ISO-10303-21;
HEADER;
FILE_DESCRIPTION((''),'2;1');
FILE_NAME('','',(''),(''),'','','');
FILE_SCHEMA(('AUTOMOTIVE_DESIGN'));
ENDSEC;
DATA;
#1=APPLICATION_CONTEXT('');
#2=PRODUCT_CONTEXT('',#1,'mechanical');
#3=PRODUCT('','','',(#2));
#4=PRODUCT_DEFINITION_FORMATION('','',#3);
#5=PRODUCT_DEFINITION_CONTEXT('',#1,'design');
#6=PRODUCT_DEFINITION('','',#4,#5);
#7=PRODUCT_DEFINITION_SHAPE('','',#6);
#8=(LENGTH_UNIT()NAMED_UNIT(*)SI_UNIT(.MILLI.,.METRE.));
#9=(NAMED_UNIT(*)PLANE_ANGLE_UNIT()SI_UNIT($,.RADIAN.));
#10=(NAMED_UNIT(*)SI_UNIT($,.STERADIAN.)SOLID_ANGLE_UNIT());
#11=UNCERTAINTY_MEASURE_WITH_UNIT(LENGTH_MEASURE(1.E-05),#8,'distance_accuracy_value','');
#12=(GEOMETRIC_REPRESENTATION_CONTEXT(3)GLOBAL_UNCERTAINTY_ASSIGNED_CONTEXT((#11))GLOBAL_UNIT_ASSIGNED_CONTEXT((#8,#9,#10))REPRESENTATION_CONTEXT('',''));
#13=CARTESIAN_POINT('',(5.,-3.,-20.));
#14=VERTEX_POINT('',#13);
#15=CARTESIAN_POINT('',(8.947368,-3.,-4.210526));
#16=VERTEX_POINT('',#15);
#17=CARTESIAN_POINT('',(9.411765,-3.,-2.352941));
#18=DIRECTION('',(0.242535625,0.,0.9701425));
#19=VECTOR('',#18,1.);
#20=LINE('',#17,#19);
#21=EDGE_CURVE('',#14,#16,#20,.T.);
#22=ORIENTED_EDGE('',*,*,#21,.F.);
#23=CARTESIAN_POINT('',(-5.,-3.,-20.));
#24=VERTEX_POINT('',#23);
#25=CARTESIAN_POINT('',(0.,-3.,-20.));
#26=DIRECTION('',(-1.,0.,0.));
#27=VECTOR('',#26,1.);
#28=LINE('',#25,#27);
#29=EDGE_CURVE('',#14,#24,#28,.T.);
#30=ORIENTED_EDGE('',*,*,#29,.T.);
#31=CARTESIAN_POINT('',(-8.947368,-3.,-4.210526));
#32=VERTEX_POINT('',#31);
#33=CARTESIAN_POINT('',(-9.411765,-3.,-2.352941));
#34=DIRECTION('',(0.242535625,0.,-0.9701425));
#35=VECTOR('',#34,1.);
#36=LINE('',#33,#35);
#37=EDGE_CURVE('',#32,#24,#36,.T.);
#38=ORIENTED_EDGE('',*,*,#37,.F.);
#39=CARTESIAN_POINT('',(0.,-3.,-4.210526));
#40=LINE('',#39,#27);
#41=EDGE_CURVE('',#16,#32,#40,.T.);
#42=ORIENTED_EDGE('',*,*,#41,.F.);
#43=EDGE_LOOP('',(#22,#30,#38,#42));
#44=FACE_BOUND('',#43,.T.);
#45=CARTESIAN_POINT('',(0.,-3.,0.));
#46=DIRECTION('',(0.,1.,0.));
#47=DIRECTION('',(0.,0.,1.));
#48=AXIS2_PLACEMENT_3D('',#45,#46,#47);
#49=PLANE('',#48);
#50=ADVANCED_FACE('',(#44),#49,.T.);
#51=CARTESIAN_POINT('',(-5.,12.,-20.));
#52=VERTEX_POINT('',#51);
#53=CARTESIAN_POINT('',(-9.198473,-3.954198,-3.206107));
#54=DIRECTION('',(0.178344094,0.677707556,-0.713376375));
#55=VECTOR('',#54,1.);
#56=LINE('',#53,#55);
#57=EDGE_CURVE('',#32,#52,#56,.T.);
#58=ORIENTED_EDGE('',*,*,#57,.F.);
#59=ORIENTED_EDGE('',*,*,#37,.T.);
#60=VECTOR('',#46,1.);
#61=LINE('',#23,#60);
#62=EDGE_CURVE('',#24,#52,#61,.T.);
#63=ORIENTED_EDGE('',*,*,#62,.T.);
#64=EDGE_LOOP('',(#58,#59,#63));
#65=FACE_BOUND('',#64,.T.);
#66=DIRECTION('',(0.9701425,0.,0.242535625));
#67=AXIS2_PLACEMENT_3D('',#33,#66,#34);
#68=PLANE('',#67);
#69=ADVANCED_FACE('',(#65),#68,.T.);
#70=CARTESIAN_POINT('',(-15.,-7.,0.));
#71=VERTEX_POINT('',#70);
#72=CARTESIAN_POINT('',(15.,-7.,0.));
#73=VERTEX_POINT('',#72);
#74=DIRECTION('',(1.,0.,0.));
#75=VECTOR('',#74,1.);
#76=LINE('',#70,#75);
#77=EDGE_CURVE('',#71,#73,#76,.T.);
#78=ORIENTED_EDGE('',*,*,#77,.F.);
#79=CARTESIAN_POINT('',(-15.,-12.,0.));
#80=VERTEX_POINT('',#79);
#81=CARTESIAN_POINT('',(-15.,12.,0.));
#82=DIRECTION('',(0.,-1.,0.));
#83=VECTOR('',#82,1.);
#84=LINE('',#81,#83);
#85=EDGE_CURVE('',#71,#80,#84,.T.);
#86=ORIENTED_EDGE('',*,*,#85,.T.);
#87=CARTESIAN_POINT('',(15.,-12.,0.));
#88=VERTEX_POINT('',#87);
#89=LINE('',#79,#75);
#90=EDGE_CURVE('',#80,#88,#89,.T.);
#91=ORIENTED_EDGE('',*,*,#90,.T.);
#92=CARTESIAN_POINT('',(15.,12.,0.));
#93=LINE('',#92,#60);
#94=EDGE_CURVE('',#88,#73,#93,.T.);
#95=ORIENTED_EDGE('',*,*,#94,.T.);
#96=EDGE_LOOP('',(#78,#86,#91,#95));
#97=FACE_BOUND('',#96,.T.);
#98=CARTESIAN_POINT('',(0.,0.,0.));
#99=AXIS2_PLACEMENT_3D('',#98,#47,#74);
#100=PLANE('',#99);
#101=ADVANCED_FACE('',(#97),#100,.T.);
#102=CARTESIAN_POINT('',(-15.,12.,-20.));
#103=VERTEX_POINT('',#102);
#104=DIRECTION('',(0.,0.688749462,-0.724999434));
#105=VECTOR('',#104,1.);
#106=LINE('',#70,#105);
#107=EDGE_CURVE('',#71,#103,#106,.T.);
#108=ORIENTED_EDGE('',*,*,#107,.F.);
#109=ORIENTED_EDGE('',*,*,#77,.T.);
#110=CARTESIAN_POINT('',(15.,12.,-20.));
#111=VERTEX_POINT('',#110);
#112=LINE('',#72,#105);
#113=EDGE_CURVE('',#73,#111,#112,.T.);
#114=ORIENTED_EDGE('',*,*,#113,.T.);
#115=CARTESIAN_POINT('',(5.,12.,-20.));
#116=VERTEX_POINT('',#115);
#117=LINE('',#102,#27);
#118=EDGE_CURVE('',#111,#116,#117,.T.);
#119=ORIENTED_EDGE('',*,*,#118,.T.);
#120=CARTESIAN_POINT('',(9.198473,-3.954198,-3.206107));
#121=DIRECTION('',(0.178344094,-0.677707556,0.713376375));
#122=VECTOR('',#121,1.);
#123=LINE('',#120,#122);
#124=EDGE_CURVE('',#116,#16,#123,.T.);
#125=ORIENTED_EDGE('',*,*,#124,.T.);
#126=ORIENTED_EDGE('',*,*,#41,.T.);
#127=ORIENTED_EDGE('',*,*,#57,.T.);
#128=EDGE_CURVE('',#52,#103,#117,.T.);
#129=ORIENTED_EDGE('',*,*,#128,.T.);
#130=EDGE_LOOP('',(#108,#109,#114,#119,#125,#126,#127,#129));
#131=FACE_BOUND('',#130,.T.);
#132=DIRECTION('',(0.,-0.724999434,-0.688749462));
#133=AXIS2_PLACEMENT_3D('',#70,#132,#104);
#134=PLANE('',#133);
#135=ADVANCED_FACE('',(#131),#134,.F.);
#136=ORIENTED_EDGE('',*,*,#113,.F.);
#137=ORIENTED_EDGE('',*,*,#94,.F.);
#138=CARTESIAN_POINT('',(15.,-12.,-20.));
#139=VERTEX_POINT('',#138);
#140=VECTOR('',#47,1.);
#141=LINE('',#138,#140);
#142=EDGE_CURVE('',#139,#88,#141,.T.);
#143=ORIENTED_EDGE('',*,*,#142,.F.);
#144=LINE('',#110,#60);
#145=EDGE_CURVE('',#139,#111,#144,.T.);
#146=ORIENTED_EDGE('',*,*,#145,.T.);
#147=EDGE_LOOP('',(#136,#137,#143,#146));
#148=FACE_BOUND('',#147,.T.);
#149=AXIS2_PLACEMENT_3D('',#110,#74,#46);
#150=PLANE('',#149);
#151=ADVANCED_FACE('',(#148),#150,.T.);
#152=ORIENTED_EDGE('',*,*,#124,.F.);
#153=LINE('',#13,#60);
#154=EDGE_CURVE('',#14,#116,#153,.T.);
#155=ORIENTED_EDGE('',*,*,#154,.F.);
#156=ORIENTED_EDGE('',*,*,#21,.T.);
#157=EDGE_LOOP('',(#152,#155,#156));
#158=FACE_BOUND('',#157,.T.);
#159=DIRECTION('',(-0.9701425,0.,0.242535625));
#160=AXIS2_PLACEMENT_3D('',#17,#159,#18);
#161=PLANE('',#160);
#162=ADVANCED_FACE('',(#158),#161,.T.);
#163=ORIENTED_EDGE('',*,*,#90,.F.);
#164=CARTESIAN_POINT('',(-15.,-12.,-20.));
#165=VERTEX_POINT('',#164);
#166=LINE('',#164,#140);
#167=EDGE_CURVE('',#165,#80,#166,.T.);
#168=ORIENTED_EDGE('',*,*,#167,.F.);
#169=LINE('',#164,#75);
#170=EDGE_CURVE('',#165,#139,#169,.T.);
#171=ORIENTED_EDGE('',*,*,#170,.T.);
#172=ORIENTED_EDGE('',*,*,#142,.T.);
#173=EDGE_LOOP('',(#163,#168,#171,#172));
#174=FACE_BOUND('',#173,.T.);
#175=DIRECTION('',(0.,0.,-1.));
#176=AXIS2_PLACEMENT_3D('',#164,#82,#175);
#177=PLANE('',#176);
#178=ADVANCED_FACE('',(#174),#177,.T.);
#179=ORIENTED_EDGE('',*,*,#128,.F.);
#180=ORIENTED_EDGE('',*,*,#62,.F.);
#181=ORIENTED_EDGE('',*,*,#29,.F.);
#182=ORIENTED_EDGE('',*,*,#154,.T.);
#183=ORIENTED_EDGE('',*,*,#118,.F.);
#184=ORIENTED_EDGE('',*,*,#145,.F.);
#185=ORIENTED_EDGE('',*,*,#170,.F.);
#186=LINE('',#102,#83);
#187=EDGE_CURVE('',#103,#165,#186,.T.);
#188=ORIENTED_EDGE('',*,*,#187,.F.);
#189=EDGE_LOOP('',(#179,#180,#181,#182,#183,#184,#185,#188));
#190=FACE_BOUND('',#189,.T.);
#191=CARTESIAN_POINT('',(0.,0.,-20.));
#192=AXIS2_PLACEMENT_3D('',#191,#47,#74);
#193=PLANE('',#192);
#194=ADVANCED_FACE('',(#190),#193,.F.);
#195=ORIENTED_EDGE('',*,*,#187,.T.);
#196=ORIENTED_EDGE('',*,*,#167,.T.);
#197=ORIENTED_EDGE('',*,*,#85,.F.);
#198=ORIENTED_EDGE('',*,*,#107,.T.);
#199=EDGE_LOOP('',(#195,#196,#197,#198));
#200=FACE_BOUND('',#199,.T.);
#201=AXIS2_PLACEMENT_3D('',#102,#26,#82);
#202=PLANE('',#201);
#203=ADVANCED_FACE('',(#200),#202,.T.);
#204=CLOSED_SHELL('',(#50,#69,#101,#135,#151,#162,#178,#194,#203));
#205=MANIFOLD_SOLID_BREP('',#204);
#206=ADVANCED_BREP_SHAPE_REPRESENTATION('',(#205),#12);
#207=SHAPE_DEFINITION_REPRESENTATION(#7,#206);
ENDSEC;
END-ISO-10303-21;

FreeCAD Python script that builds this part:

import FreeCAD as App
import Part
import Sketcher

doc = App.newDocument("Part")
body = doc.addObject("PartDesign::Body", "Body")

# Sketch on XY plane
sketch1 = body.newObject("Sketcher::SketchObject", "Sketch")
sketch1.AttachmentSupport = (doc.getObject("XY_Plane"), [""])
sketch1.MapMode = "FlatFace"
sketch1.addGeometry([
    Part.LineSegment(App.Vector(-15, 12, 0), App.Vector(-15, -12, 0)),
    Part.LineSegment(App.Vector(-15, -12, 0), App.Vector(15, -12, 0)),
    Part.LineSegment(App.Vector(15, -12, 0), App.Vector(15, 12, 0)),
    Part.LineSegment(App.Vector(15, 12, 0), App.Vector(-15, 12, 0)),
], False)
sketch1.addConstraint([
    Sketcher.Constraint("Coincident", 0, 2, 1, 1),
    Sketcher.Constraint("Coincident", 1, 2, 2, 1),
    Sketcher.Constraint("Coincident", 2, 2, 3, 1),
    Sketcher.Constraint("Coincident", 3, 2, 0, 1),
    Sketcher.Constraint("Vertical", 0),
    Sketcher.Constraint("Horizontal", 1),
    Sketcher.Constraint("Vertical", 2),
    Sketcher.Constraint("Horizontal", 3),
    Sketcher.Constraint("Symmetric", 0, 2, 2, 2, -1, 1),
    Sketcher.Constraint("DistanceX", 1, 1, 1, 2, 30.0),
    Sketcher.Constraint("DistanceY", 0, 2, 0, 1, 24.0),
])
pad1 = body.newObject("PartDesign::Pad", "Pad")
pad1.Profile = sketch1
pad1.Length = 20
pad1.Reversed = True

# Sketch on XZ plane
sketch2 = body.newObject("Sketcher::SketchObject", "Sketch001")
sketch2.AttachmentSupport = (doc.getObject("XZ_Plane"), [""])
sketch2.MapMode = "FlatFace"
sketch2.AttachmentOffset = App.Placement(App.Vector(0, 0, -12), App.Rotation())
sketch2.addGeometry([
    Part.LineSegment(App.Vector(-5, -20, 0), App.Vector(-10, 0, 0)),
    Part.LineSegment(App.Vector(-10, 0, 0), App.Vector(10, 0, 0)),
    Part.LineSegment(App.Vector(10, 0, 0), App.Vector(5, -20, 0)),
    Part.LineSegment(App.Vector(5, -20, 0), App.Vector(-5, -20, 0)),
], False)
sketch2.addConstraint([
    Sketcher.Constraint("Coincident", 0, 2, 1, 1),
    Sketcher.Constraint("Coincident", 1, 2, 2, 1),
    Sketcher.Constraint("Coincident", 2, 2, 3, 1),
    Sketcher.Constraint("Coincident", 3, 2, 0, 1),
    Sketcher.Constraint("Horizontal", 1),
    Sketcher.Constraint("Horizontal", 3),
    Sketcher.Constraint("Symmetric", 0, 2, 1, 2, -1, 1),
    Sketcher.Constraint("Equal", 0, 2),
    Sketcher.Constraint("DistanceX", 1, 1, 1, 2, 20.0),
    Sketcher.Constraint("DistanceX", 3, 2, 3, 1, 10.0),
    Sketcher.Constraint("DistanceY", 2, 2, -1, 1, 20.0),
])
pocket1 = body.newObject("PartDesign::Pocket", "Pocket")
pocket1.Profile = sketch2
pocket1.Length = 15
pocket1.Reversed = True

# Sketch on YZ plane
sketch3 = body.newObject("Sketcher::SketchObject", "Sketch002")
sketch3.AttachmentSupport = (doc.getObject("YZ_Plane"), [""])
sketch3.MapMode = "FlatFace"
sketch3.AttachmentOffset = App.Placement(App.Vector(0, 0, 15), App.Rotation())
sketch3.addGeometry([
    Part.LineSegment(App.Vector(-7, 0, 0), App.Vector(12, -20, 0)),
    Part.LineSegment(App.Vector(12, -20, 0), App.Vector(12, 0, 0)),
    Part.LineSegment(App.Vector(12, 0, 0), App.Vector(-7, 0, 0)),
], False)
sketch3.addConstraint([
    Sketcher.Constraint("Coincident", 0, 2, 1, 1),
    Sketcher.Constraint("Coincident", 1, 2, 2, 1),
    Sketcher.Constraint("Coincident", 2, 2, 0, 1),
    Sketcher.Constraint("Vertical", 1),
    Sketcher.Constraint("Horizontal", 2),
    Sketcher.Constraint("PointOnObject", 1, 2, -1),
    Sketcher.Constraint("DistanceX", 2, 2, 2, 1, 19.0),
    Sketcher.Constraint("DistanceY", 1, 1, 1, 2, 20.0),
    Sketcher.Constraint("DistanceX", -1, 1, 0, 2, 12.0),
])
pocket2 = body.newObject("PartDesign::Pocket", "Pocket001")
pocket2.Profile = sketch3
pocket2.Type = "ThroughAll"

doc.recompute()
